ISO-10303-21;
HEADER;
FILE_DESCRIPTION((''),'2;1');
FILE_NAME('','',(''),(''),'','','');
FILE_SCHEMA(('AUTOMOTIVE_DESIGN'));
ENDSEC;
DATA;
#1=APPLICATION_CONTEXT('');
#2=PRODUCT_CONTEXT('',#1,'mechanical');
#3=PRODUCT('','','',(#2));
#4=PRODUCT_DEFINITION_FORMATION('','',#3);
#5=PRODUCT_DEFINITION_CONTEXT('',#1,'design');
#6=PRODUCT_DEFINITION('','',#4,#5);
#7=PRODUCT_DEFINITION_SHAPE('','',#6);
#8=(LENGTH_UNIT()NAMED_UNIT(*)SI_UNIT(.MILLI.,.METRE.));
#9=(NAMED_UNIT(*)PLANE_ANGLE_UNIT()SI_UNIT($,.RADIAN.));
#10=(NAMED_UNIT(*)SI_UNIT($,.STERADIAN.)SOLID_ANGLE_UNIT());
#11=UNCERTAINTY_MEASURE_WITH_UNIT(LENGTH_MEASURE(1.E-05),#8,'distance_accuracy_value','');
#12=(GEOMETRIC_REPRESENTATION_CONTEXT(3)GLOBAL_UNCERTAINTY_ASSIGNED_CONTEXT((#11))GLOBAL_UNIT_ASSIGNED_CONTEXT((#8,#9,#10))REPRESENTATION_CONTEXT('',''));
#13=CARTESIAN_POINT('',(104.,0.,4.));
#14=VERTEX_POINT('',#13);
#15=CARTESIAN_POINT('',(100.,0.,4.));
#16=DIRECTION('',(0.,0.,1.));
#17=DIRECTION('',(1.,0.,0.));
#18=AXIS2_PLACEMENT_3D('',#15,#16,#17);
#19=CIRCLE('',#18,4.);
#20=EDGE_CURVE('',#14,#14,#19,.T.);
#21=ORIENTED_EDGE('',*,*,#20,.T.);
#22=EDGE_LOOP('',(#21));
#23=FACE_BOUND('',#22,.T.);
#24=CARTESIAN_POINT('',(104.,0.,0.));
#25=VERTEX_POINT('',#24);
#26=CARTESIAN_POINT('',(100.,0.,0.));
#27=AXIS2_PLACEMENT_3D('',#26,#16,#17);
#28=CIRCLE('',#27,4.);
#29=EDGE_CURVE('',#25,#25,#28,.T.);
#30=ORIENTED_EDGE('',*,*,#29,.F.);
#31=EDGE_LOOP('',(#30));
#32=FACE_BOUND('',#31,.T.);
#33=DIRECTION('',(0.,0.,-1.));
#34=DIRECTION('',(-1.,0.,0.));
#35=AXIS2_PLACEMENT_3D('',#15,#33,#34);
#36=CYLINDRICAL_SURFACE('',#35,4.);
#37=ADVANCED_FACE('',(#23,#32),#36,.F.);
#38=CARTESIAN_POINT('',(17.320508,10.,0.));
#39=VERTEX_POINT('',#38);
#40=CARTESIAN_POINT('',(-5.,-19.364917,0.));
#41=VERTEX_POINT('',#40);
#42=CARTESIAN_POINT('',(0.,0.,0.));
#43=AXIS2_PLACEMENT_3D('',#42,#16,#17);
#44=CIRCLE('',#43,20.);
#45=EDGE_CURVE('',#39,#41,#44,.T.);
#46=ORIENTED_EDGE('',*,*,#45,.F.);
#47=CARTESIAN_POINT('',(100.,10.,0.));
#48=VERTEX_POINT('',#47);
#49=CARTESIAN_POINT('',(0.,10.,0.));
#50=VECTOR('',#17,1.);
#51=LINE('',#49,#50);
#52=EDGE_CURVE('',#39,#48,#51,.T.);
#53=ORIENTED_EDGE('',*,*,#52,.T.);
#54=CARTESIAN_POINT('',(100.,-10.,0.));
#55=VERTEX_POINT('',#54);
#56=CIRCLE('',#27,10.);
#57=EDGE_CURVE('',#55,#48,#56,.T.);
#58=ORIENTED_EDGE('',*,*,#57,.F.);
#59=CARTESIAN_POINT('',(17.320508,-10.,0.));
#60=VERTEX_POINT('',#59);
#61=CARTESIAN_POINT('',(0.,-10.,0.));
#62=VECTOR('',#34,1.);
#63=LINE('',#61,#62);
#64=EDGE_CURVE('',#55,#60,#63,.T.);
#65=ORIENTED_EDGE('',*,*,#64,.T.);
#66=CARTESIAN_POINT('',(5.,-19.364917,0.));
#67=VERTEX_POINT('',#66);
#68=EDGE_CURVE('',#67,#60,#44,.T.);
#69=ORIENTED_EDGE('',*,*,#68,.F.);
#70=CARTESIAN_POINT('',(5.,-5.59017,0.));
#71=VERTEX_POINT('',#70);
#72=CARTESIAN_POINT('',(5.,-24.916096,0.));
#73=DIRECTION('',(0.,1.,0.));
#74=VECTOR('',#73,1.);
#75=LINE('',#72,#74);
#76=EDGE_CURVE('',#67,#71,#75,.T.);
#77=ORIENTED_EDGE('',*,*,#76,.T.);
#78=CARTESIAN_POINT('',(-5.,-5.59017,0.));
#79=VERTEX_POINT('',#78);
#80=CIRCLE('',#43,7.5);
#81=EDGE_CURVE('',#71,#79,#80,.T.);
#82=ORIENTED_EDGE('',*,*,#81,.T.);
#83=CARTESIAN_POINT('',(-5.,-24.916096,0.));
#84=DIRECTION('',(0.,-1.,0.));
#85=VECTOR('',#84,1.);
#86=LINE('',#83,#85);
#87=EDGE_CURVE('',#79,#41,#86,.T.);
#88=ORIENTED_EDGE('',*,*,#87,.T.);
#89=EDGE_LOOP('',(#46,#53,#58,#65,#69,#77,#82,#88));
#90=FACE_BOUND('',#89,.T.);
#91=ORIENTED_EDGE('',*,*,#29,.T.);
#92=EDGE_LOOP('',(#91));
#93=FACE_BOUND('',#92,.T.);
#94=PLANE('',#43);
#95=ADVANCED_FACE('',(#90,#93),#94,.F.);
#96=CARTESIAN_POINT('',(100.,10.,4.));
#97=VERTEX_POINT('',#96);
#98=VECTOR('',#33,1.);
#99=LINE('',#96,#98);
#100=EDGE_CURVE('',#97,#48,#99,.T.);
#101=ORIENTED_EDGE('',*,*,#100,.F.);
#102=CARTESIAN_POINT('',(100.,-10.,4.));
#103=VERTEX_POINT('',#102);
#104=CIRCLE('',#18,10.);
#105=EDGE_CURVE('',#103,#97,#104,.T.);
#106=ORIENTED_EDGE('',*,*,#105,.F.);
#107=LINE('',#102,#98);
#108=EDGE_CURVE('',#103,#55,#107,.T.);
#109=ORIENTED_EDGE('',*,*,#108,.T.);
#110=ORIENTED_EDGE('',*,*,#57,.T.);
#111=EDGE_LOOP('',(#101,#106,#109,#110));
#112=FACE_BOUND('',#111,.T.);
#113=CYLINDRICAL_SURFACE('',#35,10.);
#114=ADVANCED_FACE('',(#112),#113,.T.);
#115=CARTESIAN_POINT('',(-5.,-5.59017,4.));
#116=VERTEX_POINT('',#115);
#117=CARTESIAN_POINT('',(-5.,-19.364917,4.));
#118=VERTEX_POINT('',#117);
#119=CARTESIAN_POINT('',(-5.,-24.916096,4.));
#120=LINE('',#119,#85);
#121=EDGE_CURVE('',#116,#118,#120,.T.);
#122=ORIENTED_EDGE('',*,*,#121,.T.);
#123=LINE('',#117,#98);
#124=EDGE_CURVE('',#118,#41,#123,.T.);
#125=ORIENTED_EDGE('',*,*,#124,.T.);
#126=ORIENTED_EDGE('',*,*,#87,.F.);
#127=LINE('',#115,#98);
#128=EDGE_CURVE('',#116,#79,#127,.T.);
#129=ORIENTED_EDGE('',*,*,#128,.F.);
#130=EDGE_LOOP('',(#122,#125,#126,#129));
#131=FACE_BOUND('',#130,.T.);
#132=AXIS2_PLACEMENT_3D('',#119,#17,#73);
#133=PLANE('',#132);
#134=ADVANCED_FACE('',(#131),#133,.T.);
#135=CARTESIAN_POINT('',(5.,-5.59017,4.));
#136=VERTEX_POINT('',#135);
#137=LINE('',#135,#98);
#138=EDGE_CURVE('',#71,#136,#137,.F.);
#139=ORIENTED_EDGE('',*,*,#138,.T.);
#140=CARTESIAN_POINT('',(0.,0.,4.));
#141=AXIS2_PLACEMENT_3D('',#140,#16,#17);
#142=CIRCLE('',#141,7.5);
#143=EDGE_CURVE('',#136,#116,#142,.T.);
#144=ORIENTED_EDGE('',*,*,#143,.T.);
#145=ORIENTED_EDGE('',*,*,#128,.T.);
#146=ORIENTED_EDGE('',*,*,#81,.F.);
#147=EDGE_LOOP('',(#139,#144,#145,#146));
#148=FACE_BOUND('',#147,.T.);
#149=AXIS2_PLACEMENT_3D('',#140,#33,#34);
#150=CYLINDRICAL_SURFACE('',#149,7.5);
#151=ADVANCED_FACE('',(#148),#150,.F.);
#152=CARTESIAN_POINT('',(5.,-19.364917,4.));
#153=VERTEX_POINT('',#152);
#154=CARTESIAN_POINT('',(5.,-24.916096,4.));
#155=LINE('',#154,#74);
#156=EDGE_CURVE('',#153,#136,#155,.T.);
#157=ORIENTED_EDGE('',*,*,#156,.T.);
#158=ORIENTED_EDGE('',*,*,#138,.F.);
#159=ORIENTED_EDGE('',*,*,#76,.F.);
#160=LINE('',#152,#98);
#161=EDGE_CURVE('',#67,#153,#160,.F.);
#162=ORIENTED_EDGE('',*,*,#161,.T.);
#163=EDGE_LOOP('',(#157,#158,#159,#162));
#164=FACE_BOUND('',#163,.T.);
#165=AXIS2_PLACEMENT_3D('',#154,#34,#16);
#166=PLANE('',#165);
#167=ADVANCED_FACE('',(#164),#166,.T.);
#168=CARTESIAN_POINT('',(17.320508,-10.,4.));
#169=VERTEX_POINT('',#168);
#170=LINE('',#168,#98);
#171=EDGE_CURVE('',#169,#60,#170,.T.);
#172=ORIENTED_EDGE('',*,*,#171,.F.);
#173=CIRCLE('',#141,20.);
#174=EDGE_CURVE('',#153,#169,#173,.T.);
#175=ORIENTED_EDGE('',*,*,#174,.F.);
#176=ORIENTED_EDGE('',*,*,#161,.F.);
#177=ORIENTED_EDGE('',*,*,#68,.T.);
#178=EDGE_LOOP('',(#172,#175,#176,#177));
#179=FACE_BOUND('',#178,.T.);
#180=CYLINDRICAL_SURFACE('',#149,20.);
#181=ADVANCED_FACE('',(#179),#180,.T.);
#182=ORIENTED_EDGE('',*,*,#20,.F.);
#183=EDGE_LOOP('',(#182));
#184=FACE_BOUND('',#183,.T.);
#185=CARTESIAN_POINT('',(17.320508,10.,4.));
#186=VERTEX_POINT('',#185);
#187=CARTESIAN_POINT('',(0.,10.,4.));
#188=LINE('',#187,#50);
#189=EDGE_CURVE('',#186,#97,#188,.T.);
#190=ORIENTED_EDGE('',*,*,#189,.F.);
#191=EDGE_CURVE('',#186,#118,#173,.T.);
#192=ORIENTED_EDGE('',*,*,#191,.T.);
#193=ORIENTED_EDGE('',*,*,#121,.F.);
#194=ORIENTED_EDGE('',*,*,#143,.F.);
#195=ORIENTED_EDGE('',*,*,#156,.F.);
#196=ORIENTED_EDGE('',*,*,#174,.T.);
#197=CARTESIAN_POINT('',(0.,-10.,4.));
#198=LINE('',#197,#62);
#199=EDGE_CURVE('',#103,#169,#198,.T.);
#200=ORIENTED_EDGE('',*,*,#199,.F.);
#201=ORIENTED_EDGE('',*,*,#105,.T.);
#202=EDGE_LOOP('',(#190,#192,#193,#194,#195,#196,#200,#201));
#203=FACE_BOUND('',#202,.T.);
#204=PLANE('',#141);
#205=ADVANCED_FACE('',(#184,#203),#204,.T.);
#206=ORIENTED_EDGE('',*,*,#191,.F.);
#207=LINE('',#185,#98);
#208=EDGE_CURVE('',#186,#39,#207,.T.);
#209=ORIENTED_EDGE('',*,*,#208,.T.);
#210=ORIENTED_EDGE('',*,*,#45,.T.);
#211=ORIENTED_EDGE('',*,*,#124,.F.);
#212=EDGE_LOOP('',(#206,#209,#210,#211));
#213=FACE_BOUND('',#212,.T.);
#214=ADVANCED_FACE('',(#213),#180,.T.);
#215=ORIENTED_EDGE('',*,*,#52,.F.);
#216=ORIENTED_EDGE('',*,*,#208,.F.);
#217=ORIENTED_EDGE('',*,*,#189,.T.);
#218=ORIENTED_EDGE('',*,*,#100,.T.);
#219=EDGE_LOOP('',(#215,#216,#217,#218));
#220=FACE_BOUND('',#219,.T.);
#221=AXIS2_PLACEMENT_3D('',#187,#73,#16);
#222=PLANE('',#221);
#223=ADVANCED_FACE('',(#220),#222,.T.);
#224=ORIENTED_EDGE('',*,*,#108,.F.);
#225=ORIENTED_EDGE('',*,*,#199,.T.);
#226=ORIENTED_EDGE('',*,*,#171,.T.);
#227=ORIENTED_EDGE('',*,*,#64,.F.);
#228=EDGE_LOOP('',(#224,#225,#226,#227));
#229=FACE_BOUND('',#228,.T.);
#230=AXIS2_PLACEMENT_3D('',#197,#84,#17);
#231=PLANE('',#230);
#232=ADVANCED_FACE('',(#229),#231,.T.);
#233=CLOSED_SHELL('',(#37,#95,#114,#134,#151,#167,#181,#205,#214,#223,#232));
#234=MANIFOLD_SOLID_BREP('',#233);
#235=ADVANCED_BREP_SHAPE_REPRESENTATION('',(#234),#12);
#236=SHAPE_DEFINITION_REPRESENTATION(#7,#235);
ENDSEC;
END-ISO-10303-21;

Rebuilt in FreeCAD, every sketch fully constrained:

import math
import FreeCAD as App
import Part
import Sketcher

V = App.Vector
Q = App.Units.Quantity

doc = App.newDocument("Part")
body = doc.addObject("PartDesign::Body", "Body")

# Sketch on XY plane
sketch1 = doc.addObject("Sketcher::SketchObject", "Sketch")
body.addObject(sketch1)
sketch1.AttachmentSupport = (doc.XY_Plane, [""])
sketch1.MapMode = "FlatFace"
sketch1.addGeometry([
    Part.LineSegment(V(17.320508, -10, 0), V(100, -10, 0)),  # 0
    Part.ArcOfCircle(Part.Circle(V(100, 0, 0), V(0, 0, 1), 10), math.radians(-90), math.radians(0)),  # 1
    Part.ArcOfCircle(Part.Circle(V(100, 0, 0), V(0, 0, 1), 10), math.radians(0), math.radians(90)),  # 2
    Part.LineSegment(V(100, 10, 0), V(17.320508, 10, 0)),  # 3
    Part.ArcOfCircle(Part.Circle(V(0, 0, 0), V(0, 0, 1), 20), math.radians(30), math.radians(330)),  # 4
], False)
sketch1.addConstraint([
    Sketcher.Constraint("Tangent", 0, 2, 1, 1),
    Sketcher.Constraint("Tangent", 1, 2, 2, 1),
    Sketcher.Constraint("Tangent", 2, 2, 3, 1),
    Sketcher.Constraint("Coincident", 3, 2, 4, 1),
    Sketcher.Constraint("Coincident", 4, 2, 0, 1),
    Sketcher.Constraint("Horizontal", 0),
    Sketcher.Constraint("Horizontal", 3),
    Sketcher.Constraint("Coincident", 4, 3, -1, 1),
    Sketcher.Constraint("Equal", 1, 2),
    Sketcher.Constraint("PointOnObject", 1, 3, -1),
    Sketcher.Constraint("PointOnObject", 1, 2, -1),
    Sketcher.Constraint("Radius", 1, Q("10 mm")),
    Sketcher.Constraint("Radius", 4, Q("20 mm")),
    Sketcher.Constraint("DistanceX", -1, 1, 1, 3, Q("100 mm")),
])
pad1 = doc.addObject("PartDesign::Pad", "Pad")
body.addObject(pad1)
pad1.Profile = sketch1
pad1.Length = 4

# Sketch on XY plane
sketch2 = doc.addObject("Sketcher::SketchObject", "Sketch001")
body.addObject(sketch2)
sketch2.AttachmentSupport = (doc.XY_Plane, [""])
sketch2.MapMode = "FlatFace"
sketch2.addGeometry(Part.Circle(V(100, 0, 0), V(0, 0, 1), 4), False)
sketch2.addConstraint([
    Sketcher.Constraint("PointOnObject", 0, 3, -1),
    Sketcher.Constraint("Diameter", 0, Q("8 mm")),
    Sketcher.Constraint("DistanceX", -1, 1, 0, 3, Q("100 mm")),
])
pocket1 = doc.addObject("PartDesign::Pocket", "Pocket")
body.addObject(pocket1)
pocket1.Profile = sketch2
pocket1.Length = 4
pocket1.Reversed = True

# Sketch on XY plane
sketch3 = doc.addObject("Sketcher::SketchObject", "Sketch002")
body.addObject(sketch3)
sketch3.AttachmentSupport = (doc.XY_Plane, [""])
sketch3.MapMode = "FlatFace"
sketch3.addGeometry(Part.Circle(V(0, 0, 0), V(0, 0, 1), 7.5), False)
sketch3.addConstraint([
    Sketcher.Constraint("Coincident", 0, 3, -1, 1),
    Sketcher.Constraint("Diameter", 0, Q("15 mm")),
])
pocket2 = doc.addObject("PartDesign::Pocket", "Pocket001")
body.addObject(pocket2)
pocket2.Profile = sketch3
pocket2.Length = 4
pocket2.Reversed = True

# Sketch on XY plane
sketch4 = doc.addObject("Sketcher::SketchObject", "Sketch003")
body.addObject(sketch4)
sketch4.AttachmentSupport = (doc.XY_Plane, [""])
sketch4.MapMode = "FlatFace"
sketch4.addGeometry([
    Part.LineSegment(V(-5, -3.382237, 0), V(-5, -24.916096, 0)),
    Part.LineSegment(V(-5, -24.916096, 0), V(5, -24.916096, 0)),
    Part.LineSegment(V(5, -24.916096, 0), V(5, -3.382237, 0)),
    Part.LineSegment(V(5, -3.382237, 0), V(-5, -3.382237, 0)),
], False)
sketch4.addConstraint([
    Sketcher.Constraint("Coincident", 0, 2, 1, 1),
    Sketcher.Constraint("Coincident", 1, 2, 2, 1),
    Sketcher.Constraint("Coincident", 2, 2, 3, 1),
    Sketcher.Constraint("Coincident", 3, 2, 0, 1),
    Sketcher.Constraint("Vertical", 0),
    Sketcher.Constraint("Horizontal", 1),
    Sketcher.Constraint("Vertical", 2),
    Sketcher.Constraint("Horizontal", 3),
    Sketcher.Constraint("DistanceX", 1, 1, 1, 2, Q("10 mm")),
    Sketcher.Constraint("DistanceX", 0, 2, -1, 1, Q("5 mm")),
    Sketcher.Constraint("DistanceY", 0, 2, 0, 1, Q("21.533859 mm")),
    Sketcher.Constraint("DistanceY", 0, 2, -1, 1, Q("24.916096 mm")),
])
pocket3 = doc.addObject("PartDesign::Pocket", "Pocket002")
body.addObject(pocket3)
pocket3.Profile = sketch4
pocket3.Length = 4
pocket3.Reversed = True

doc.recompute()
